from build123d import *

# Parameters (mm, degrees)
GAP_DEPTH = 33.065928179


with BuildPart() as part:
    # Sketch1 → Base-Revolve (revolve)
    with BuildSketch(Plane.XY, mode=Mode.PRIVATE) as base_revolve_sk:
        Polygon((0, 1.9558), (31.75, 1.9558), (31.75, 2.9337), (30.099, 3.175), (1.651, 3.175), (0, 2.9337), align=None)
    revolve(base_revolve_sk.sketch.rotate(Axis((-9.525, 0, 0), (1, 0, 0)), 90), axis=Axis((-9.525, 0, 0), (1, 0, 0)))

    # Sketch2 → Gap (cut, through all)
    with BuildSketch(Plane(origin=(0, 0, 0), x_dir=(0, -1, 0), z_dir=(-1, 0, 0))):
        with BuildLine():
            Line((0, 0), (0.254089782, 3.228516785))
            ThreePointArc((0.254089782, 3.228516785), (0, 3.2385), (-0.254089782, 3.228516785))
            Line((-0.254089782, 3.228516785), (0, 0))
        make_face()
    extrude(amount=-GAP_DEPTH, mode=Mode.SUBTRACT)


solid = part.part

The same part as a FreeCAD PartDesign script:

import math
import FreeCAD as App
import Part
import Sketcher
from FreeCAD import Vector
Q = App.Units.Quantity


def add_polygon(sketch, points):
    """Adds a closed chain of lines whose ends are joined by coincident constraints."""
    first, n = sketch.GeometryCount, len(points)
    for a, b in zip(points, points[1:] + points[:1]):
        sketch.addGeometry(Part.LineSegment(App.Vector(*a, 0), App.Vector(*b, 0)), False)
    for i in range(n):
        sketch.addConstraint(Sketcher.Constraint("Coincident", first + i, 2, first + (i + 1) % n, 1))

doc = App.newDocument("Part")
body = doc.addObject("PartDesign::Body", "Body")

sketch1 = body.newObject("Sketcher::SketchObject", "Sketch")
sketch1.AttachmentSupport = (doc.getObject("XY_Plane"), [""])
sketch1.MapMode = "FlatFace"
add_polygon(sketch1, [(0, 1.9558), (31.75, 1.9558), (31.75, 2.9337), (30.099, 3.175), (1.651, 3.175), (0, 2.9337)])
sketch1.addConstraint([
    Sketcher.Constraint("Horizontal", 0),
    Sketcher.Constraint("Vertical", 1),
    Sketcher.Constraint("Horizontal", 3),
    Sketcher.Constraint("Vertical", 5),
    Sketcher.Constraint("PointOnObject", 4, 2, -2),
    Sketcher.Constraint("Horizontal", 1, 2, 4, 2),
    Sketcher.Constraint("Equal", 2, 4),
    Sketcher.Constraint("DistanceX", 0, 1, 0, 2, Q("1.25 in")),
    Sketcher.Constraint("DistanceX", 3, 2, 3, 1, Q("1.12 in")),
    Sketcher.Constraint("DistanceY", 1, 1, 1, 2, Q("0.0385 in")),
    Sketcher.Constraint("DistanceY", -1, 1, 0, 2, Q("0.077 in")),
    Sketcher.Constraint("DistanceY", -1, 1, 2, 2, Q("0.125 in")),
])
revolution = body.newObject("PartDesign::Revolution", "Revolution")
revolution.Profile = sketch1
revolution.ReferenceAxis = (sketch1, ["H_Axis"])
revolution.Angle = 360

sketch2 = body.newObject("Sketcher::SketchObject", "Sketch001")
sketch2.AttachmentSupport = (doc.getObject("YZ_Plane"), [""])
sketch2.MapMode = "FlatFace"
sketch2.addGeometry([
    Part.LineSegment(Vector(0, 0, 0), Vector(-0.25409, 3.228517, 0)),
    Part.ArcOfCircle(Part.Circle(Vector(0, 0, 0), Vector(0, 0, 1), 3.2385), math.radians(85.5), math.radians(94.5)),
    Part.LineSegment(Vector(0.25409, 3.228517, 0), Vector(0, 0, 0)),
], False)
sketch2.addConstraint([
    Sketcher.Constraint("Coincident", 0, 2, 1, 2),
    Sketcher.Constraint("Coincident", 1, 1, 2, 1),
    Sketcher.Constraint("Coincident", 2, 2, 0, 1),
    Sketcher.Constraint("Coincident", 1, 3, -1, 1),
    Sketcher.Constraint("Coincident", 2, 2, -1, 1),
    Sketcher.Constraint("Horizontal", 0, 2, 1, 1),
    Sketcher.Constraint("Angle", 0, Q("94.5 deg")),
    Sketcher.Constraint("Radius", 1, Q("0.1275 in")),
])
pocket1 = body.newObject("PartDesign::Pocket", "Pocket")
pocket1.Profile = sketch2
pocket1.Type = "ThroughAll"
pocket1.Reversed = True

doc.recompute()
